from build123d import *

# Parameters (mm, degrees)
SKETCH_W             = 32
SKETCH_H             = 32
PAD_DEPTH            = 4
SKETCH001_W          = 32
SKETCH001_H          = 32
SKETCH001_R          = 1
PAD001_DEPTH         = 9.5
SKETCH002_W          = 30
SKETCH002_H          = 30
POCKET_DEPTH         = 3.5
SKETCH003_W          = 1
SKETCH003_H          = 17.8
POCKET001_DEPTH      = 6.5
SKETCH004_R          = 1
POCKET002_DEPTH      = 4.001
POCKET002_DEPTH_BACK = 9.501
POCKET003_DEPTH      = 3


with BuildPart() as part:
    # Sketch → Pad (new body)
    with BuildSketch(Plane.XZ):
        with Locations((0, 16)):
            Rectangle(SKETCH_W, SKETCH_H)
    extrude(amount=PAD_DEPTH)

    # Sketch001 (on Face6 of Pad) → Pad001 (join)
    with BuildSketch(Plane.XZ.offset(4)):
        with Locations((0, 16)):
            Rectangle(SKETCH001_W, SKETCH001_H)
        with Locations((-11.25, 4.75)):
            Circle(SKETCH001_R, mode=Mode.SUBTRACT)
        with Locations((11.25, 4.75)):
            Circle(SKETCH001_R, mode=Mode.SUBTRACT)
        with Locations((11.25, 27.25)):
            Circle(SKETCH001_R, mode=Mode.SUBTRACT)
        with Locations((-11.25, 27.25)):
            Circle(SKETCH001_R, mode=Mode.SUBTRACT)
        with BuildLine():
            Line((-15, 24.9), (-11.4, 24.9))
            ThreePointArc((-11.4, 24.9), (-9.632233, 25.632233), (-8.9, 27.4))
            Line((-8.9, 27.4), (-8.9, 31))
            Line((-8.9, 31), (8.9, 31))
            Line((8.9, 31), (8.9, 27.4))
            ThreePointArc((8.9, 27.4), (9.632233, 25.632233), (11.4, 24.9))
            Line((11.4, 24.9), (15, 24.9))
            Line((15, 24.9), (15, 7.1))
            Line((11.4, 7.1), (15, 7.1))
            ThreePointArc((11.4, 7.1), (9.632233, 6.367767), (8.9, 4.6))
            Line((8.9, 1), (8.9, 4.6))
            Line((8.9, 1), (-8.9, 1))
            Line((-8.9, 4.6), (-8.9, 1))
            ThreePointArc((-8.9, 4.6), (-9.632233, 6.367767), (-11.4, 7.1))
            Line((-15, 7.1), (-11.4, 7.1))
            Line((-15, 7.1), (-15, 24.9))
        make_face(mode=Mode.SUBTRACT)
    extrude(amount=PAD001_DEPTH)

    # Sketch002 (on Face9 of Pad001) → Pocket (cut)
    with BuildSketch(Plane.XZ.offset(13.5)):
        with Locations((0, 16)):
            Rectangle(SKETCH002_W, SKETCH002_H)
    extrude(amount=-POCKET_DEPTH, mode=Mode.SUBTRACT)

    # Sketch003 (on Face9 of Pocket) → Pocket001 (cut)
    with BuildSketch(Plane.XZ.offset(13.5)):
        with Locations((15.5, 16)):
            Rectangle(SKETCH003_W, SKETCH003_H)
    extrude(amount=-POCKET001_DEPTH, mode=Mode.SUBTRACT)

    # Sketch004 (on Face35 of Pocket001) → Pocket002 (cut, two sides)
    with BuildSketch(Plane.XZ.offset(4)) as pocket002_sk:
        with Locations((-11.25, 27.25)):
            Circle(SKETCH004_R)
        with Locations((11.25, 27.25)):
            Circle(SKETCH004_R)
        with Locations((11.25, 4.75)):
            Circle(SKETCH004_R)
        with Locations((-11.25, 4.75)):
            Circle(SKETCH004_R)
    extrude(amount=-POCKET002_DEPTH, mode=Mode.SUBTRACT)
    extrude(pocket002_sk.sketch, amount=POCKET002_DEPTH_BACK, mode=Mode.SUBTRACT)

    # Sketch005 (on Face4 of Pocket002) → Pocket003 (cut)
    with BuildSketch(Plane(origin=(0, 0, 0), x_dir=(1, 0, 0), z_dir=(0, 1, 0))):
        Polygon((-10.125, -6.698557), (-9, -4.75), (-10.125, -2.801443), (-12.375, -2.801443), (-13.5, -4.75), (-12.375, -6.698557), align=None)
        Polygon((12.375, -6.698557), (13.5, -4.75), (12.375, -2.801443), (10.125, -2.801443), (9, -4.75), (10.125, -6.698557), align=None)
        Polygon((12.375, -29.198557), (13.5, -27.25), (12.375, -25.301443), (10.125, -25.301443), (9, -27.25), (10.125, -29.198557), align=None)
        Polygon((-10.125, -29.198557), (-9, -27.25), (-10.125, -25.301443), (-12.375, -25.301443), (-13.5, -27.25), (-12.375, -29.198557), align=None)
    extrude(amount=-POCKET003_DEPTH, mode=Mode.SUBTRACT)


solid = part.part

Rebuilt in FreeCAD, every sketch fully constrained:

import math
import FreeCAD as App
import Part
import Sketcher
from FreeCAD import Vector
Q = App.Units.Quantity

doc = App.newDocument("Part")
params = doc.addObject("Spreadsheet::Sheet", "Params")
for row, (alias, value) in enumerate([
    ("sketch1_width", "32 mm"),
    ("pad1_length", "4 mm"),
    ("sketch2_diameter", "2 mm"),
    ("sketch2_radius", "2.5 mm"),
    ("sketch2_width", "32 mm"),
    ("sketch2_width2", "3.6 mm"),
    ("sketch2_width3", "17.8 mm"),
    ("pad2_length", "9.5 mm"),
    ("sketch3_width", "30 mm"),
    ("pocket1_length", "3.5 mm"),
    ("sketch4_width", "1 mm"),
    ("sketch4_height", "17.8 mm"),
    ("pocket2_length", "6.5 mm"),
    ("sketch5_diameter", "2 mm"),
    ("sketch6_width", "2.25 mm"),
    ("pocket4_length", "3 mm"),
], start=1):
    params.set(f"A{row}", alias)
    params.set(f"B{row}", "=" + value)
    params.setAlias(f"B{row}", alias)

body = doc.addObject("PartDesign::Body", "Body")

# Sketch on XZ plane
sketch1 = body.newObject("Sketcher::SketchObject", "Sketch")
sketch1.AttachmentSupport = (doc.getObject("XZ_Plane"), [""])
sketch1.MapMode = "FlatFace"
sketch1.addGeometry([
    Part.LineSegment(Vector(-16, 32, 0), Vector(-16, 0, 0)),
    Part.LineSegment(Vector(-16, 0, 0), Vector(16, 0, 0)),
    Part.LineSegment(Vector(16, 0, 0), Vector(16, 32, 0)),
    Part.LineSegment(Vector(16, 32, 0), Vector(-16, 32, 0)),
], False)
sketch1.addConstraint([
    Sketcher.Constraint("Coincident", 0, 2, 1, 1),
    Sketcher.Constraint("Coincident", 1, 2, 2, 1),
    Sketcher.Constraint("Coincident", 2, 2, 3, 1),
    Sketcher.Constraint("Coincident", 3, 2, 0, 1),
    Sketcher.Constraint("Vertical", 0),
    Sketcher.Constraint("Horizontal", 1),
    Sketcher.Constraint("Vertical", 2),
    Sketcher.Constraint("Horizontal", 3),
    Sketcher.Constraint("Symmetric", 0, 2, 1, 2, -1, 1),
    Sketcher.Constraint("Equal", 3, 0),
    Sketcher.Constraint("DistanceX", 1, 1, 1, 2, Q("32 mm")),
])
sketch1.setExpression("Constraints[10]", "Params.sketch1_width")
pad1 = body.newObject("PartDesign::Pad", "Pad")
pad1.Profile = sketch1
pad1.setExpression("Length", "Params.pad1_length")

# Sketch on XZ plane
sketch2 = body.newObject("Sketcher::SketchObject", "Sketch001")
sketch2.AttachmentSupport = (doc.getObject("XZ_Plane"), [""])
sketch2.MapMode = "FlatFace"
sketch2.AttachmentOffset = App.Placement(Vector(0, 0, 4), App.Rotation())
sketch2.addGeometry([
    Part.LineSegment(Vector(-16, 32, 0), Vector(-16, 0, 0)),  # 0
    Part.LineSegment(Vector(-16, 0, 0), Vector(16, 0, 0)),  # 1
    Part.LineSegment(Vector(16, 0, 0), Vector(16, 32, 0)),  # 2
    Part.LineSegment(Vector(16, 32, 0), Vector(-16, 32, 0)),  # 3
    Part.Circle(Vector(-11.25, 4.75, 0), Vector(0, 0, 1), 1),  # 4
    Part.Circle(Vector(11.25, 4.75, 0), Vector(0, 0, 1), 1),  # 5
    Part.Circle(Vector(-11.25, 27.25, 0), Vector(0, 0, 1), 1),  # 6
    Part.LineSegment(Vector(-15, 7.1, 0), Vector(-15, 24.9, 0)),  # 7
    Part.LineSegment(Vector(-15, 24.9, 0), Vector(-11.4, 24.9, 0)),  # 8
    Part.ArcOfCircle(Part.Circle(Vector(-11.4, 27.4, 0), Vector(0, 0, 1), 2.5), math.radians(-90.000004), math.radians(0.000004)),  # 9
    Part.LineSegment(Vector(-8.9, 27.4, 0), Vector(-8.9, 31, 0)),  # 10
    Part.LineSegment(Vector(-8.9, 31, 0), Vector(8.9, 31, 0)),  # 11
    Part.LineSegment(Vector(8.9, 31, 0), Vector(8.9, 27.4, 0)),  # 12
    Part.ArcOfCircle(Part.Circle(Vector(11.4, 27.4, 0), Vector(0, 0, 1), 2.5), math.radians(179.999996), math.radians(270.000004)),  # 13
    Part.LineSegment(Vector(11.4, 24.9, 0), Vector(15, 24.9, 0)),  # 14
    Part.LineSegment(Vector(15, 24.9, 0), Vector(15, 7.1, 0)),  # 15
    Part.LineSegment(Vector(15, 7.1, 0), Vector(11.4, 7.1, 0)),  # 16
    Part.ArcOfCircle(Part.Circle(Vector(11.4, 4.6, 0), Vector(0, 0, 1), 2.5), math.radians(89.999996), math.radians(180.000004)),  # 17
    Part.LineSegment(Vector(8.9, 4.6, 0), Vector(8.9, 1, 0)),  # 18
    Part.LineSegment(Vector(8.9, 1, 0), Vector(-8.9, 1, 0)),  # 19
    Part.LineSegment(Vector(-8.9, 1, 0), Vector(-8.9, 4.6, 0)),  # 20
    Part.ArcOfCircle(Part.Circle(Vector(-11.4, 4.6, 0), Vector(0, 0, 1), 2.5), math.radians(-0.000004), math.radians(90.000004)),  # 21
    Part.LineSegment(Vector(-11.4, 7.1, 0), Vector(-15, 7.1, 0)),  # 22
    Part.Circle(Vector(11.25, 27.25, 0), Vector(0, 0, 1), 1),  # 23
], False)
sketch2.addConstraint([
    Sketcher.Constraint("Coincident", 0, 2, 1, 1),
    Sketcher.Constraint("Coincident", 1, 2, 2, 1),
    Sketcher.Constraint("Coincident", 2, 2, 3, 1),
    Sketcher.Constraint("Coincident", 3, 2, 0, 1),
    Sketcher.Constraint("Coincident", 7, 2, 8, 1),
    Sketcher.Constraint("Tangent", 8, 2, 9, 1),
    Sketcher.Constraint("Tangent", 9, 2, 10, 1),
    Sketcher.Constraint("Coincident", 10, 2, 11, 1),
    Sketcher.Constraint("Coincident", 11, 2, 12, 1),
    Sketcher.Constraint("Tangent", 12, 2, 13, 1),
    Sketcher.Constraint("Tangent", 13, 2, 14, 1),
    Sketcher.Constraint("Coincident", 14, 2, 15, 1),
    Sketcher.Constraint("Coincident", 15, 2, 16, 1),
    Sketcher.Constraint("Tangent", 16, 2, 17, 1),
    Sketcher.Constraint("Tangent", 17, 2, 18, 1),
    Sketcher.Constraint("Coincident", 18, 2, 19, 1),
    Sketcher.Constraint("Coincident", 19, 2, 20, 1),
    Sketcher.Constraint("Tangent", 20, 2, 21, 1),
    Sketcher.Constraint("Tangent", 21, 2, 22, 1),
    Sketcher.Constraint("Coincident", 22, 2, 7, 1),
    Sketcher.Constraint("Vertical", 0),
    Sketcher.Constraint("Horizontal", 1),
    Sketcher.Constraint("Vertical", 2),
    Sketcher.Constraint("Horizontal", 3),
    Sketcher.Constraint("Vertical", 7),
    Sketcher.Constraint("Horizontal", 8),
    Sketcher.Constraint("Vertical", 10),
    Sketcher.Constraint("Horizontal", 11),
    Sketcher.Constraint("Vertical", 12),
    Sketcher.Constraint("Horizontal", 14),
    Sketcher.Constraint("Vertical", 15),
    Sketcher.Constraint("Horizontal", 16),
    Sketcher.Constraint("Vertical", 18),
    Sketcher.Constraint("Horizontal", 19),
    Sketcher.Constraint("Vertical", 20),
    Sketcher.Constraint("Horizontal", 22),
    Sketcher.Constraint("Equal", 4, 5),
    Sketcher.Constraint("Equal", 5, 6),
    Sketcher.Constraint("Equal", 9, 13),
    Sketcher.Constraint("Equal", 13, 17),
    Sketcher.Constraint("Equal", 17, 21),
    Sketcher.Constraint("Equal", 6, 23),
    Sketcher.Constraint("Symmetric", 0, 2, 1, 2, -1, 1),
    Sketcher.Constraint("Symmetric", 4, 3, 5, 3, -2),
    Sketcher.Constraint("Symmetric", 9, 3, 13, 3, -2),
    Sketcher.Constraint("Symmetric", 17, 3, 21, 3, -2),
    Sketcher.Constraint("Symmetric", 6, 3, 23, 3, -2),
    Sketcher.Constraint("Vertical", 4, 3, 6, 3),
    Sketcher.Constraint("Vertical", 13, 3, 17, 3),
    Sketcher.Constraint("Equal", 8, 14),
    Sketcher.Constraint("Equal", 3, 0),
    Sketcher.Constraint("Equal", 19, 7),
    Sketcher.Constraint("Equal", 22, 10),
    Sketcher.Constraint("Equal", 12, 18),
    Sketcher.Constraint("Diameter", 4, Q("2 mm")),
    Sketcher.Constraint("Radius", 9, Q("2.5 mm")),
    Sketcher.Constraint("DistanceX", 1, 1, 1, 2, Q("32 mm")),
    Sketcher.Constraint("DistanceX", 8, 1, 8, 2, Q("3.6 mm")),
    Sketcher.Constraint("DistanceX", 11, 1, 11, 2, Q("17.8 mm")),
    Sketcher.Constraint("DistanceY", -1, 1, 10, 2, Q("31 mm")),
    Sketcher.Constraint("DistanceX", 4, 3, 5, 3, Q("22.5 mm")),
    Sketcher.Constraint("DistanceY", 4, 3, 6, 3, Q("22.5 mm")),
    Sketcher.Constraint("DistanceY", -1, 1, 4, 3, Q("4.75 mm")),
])
sketch2.setExpression("Constraints[54]", "Params.sketch2_diameter")
sketch2.setExpression("Constraints[55]", "Params.sketch2_radius")
sketch2.setExpression("Constraints[56]", "Params.sketch2_width")
sketch2.setExpression("Constraints[57]", "Params.sketch2_width2")
sketch2.setExpression("Constraints[58]", "Params.sketch2_width3")
pad2 = body.newObject("PartDesign::Pad", "Pad001")
pad2.Profile = sketch2
pad2.setExpression("Length", "Params.pad2_length")

# Sketch on XZ plane
sketch3 = body.newObject("Sketcher::SketchObject", "Sketch002")
sketch3.AttachmentSupport = (doc.getObject("XZ_Plane"), [""])
sketch3.MapMode = "FlatFace"
sketch3.AttachmentOffset = App.Placement(Vector(0, 0, 13.5), App.Rotation())
sketch3.addGeometry([
    Part.LineSegment(Vector(-15, 31, 0), Vector(-15, 1, 0)),
    Part.LineSegment(Vector(-15, 1, 0), Vector(15, 1, 0)),
    Part.LineSegment(Vector(15, 1, 0), Vector(15, 31, 0)),
    Part.LineSegment(Vector(15, 31, 0), Vector(-15, 31, 0)),
], False)
sketch3.addConstraint([
    Sketcher.Constraint("Coincident", 0, 2, 1, 1),
    Sketcher.Constraint("Coincident", 1, 2, 2, 1),
    Sketcher.Constraint("Coincident", 2, 2, 3, 1),
    Sketcher.Constraint("Coincident", 3, 2, 0, 1),
    Sketcher.Constraint("Vertical", 0),
    Sketcher.Constraint("Horizontal", 1),
    Sketcher.Constraint("Vertical", 2),
    Sketcher.Constraint("Horizontal", 3),
    Sketcher.Constraint("Equal", 3, 0),
    Sketcher.Constraint("DistanceX", 1, 1, 1, 2, Q("30 mm")),
    Sketcher.Constraint("DistanceX", 0, 2, -1, 1, Q("15 mm")),
    Sketcher.Constraint("DistanceY", -1, 1, 0, 2, Q("1 mm")),
])
sketch3.setExpression("Constraints[9]", "Params.sketch3_width")
pocket1 = body.newObject("PartDesign::Pocket", "Pocket")
pocket1.Profile = sketch3
pocket1.setExpression("Length", "Params.pocket1_length")

# Sketch on XZ plane
sketch4 = body.newObject("Sketcher::SketchObject", "Sketch003")
sketch4.AttachmentSupport = (doc.getObject("XZ_Plane"), [""])
sketch4.MapMode = "FlatFace"
sketch4.AttachmentOffset = App.Placement(Vector(0, 0, 13.5), App.Rotation())
sketch4.addGeometry([
    Part.LineSegment(Vector(15, 24.9, 0), Vector(15, 7.1, 0)),
    Part.LineSegment(Vector(15, 7.1, 0), Vector(16, 7.1, 0)),
    Part.LineSegment(Vector(16, 7.1, 0), Vector(16, 24.9, 0)),
    Part.LineSegment(Vector(16, 24.9, 0), Vector(15, 24.9, 0)),
], False)
sketch4.addConstraint([
    Sketcher.Constraint("Coincident", 0, 2, 1, 1),
    Sketcher.Constraint("Coincident", 1, 2, 2, 1),
    Sketcher.Constraint("Coincident", 2, 2, 3, 1),
    Sketcher.Constraint("Coincident", 3, 2, 0, 1),
    Sketcher.Constraint("Vertical", 0),
    Sketcher.Constraint("Horizontal", 1),
    Sketcher.Constraint("Vertical", 2),
    Sketcher.Constraint("Horizontal", 3),
    Sketcher.Constraint("DistanceX", 1, 1, 1, 2, Q("1 mm")),
    Sketcher.Constraint("DistanceY", 0, 2, 0, 1, Q("17.8 mm")),
    Sketcher.Constraint("DistanceX", -1, 1, 0, 2, Q("15 mm")),
    Sketcher.Constraint("DistanceY", -1, 1, 0, 2, Q("7.1 mm")),
])
sketch4.setExpression("Constraints[8]", "Params.sketch4_width")
sketch4.setExpression("Constraints[9]", "Params.sketch4_height")
pocket2 = body.newObject("PartDesign::Pocket", "Pocket001")
pocket2.Profile = sketch4
pocket2.setExpression("Length", "Params.pocket2_length")

# Sketch on XZ plane
sketch5 = body.newObject("Sketcher::SketchObject", "Sketch004")
sketch5.AttachmentSupport = (doc.getObject("XZ_Plane"), [""])
sketch5.MapMode = "FlatFace"
sketch5.AttachmentOffset = App.Placement(Vector(0, 0, 4), App.Rotation())
sketch5.addGeometry([
    Part.Circle(Vector(-11.25, 27.25, 0), Vector(0, 0, 1), 1),
    Part.Circle(Vector(11.25, 27.25, 0), Vector(0, 0, 1), 1),
    Part.Circle(Vector(11.25, 4.75, 0), Vector(0, 0, 1), 1),
    Part.Circle(Vector(-11.25, 4.75, 0), Vector(0, 0, 1), 1),
], False)
sketch5.addConstraint([
    Sketcher.Constraint("Equal", 0, 1),
    Sketcher.Constraint("Equal", 1, 2),
    Sketcher.Constraint("Equal", 2, 3),
    Sketcher.Constraint("Symmetric", 0, 3, 1, 3, -2),
    Sketcher.Constraint("Symmetric", 2, 3, 3, 3, -2),
    Sketcher.Constraint("Vertical", 1, 3, 2, 3),
    Sketcher.Constraint("Diameter", 0, Q("2 mm")),
    Sketcher.Constraint("DistanceX", 0, 3, 1, 3, Q("22.5 mm")),
    Sketcher.Constraint("DistanceY", 2, 3, 1, 3, Q("22.5 mm")),
    Sketcher.Constraint("DistanceY", -1, 1, 0, 3, Q("27.25 mm")),
])
sketch5.setExpression("Constraints[6]", "Params.sketch5_diameter")
pocket3 = body.newObject("PartDesign::Pocket", "Pocket002")
pocket3.Profile = sketch5
pocket3.Type = "ThroughAll"
pocket3.Midplane = True

# Sketch on XZ plane
sketch6 = body.newObject("Sketcher::SketchObject", "Sketch005")
sketch6.AttachmentSupport = (doc.getObject("XZ_Plane"), [""])
sketch6.MapMode = "FlatFace"
sketch6.addGeometry([
    Part.LineSegment(Vector(-10.125, 6.698557, 0), Vector(-9, 4.75, 0)),  # 0
    Part.LineSegment(Vector(-9, 4.75, 0), Vector(-10.125, 2.801443, 0)),  # 1
    Part.LineSegment(Vector(-10.125, 2.801443, 0), Vector(-12.375, 2.801443, 0)),  # 2
    Part.LineSegment(Vector(-12.375, 2.801443, 0), Vector(-13.5, 4.75, 0)),  # 3
    Part.LineSegment(Vector(-13.5, 4.75, 0), Vector(-12.375, 6.698557, 0)),  # 4
    Part.LineSegment(Vector(-12.375, 6.698557, 0), Vector(-10.125, 6.698557, 0)),  # 5
    Part.LineSegment(Vector(12.375, 6.698557, 0), Vector(13.5, 4.75, 0)),  # 6
    Part.LineSegment(Vector(13.5, 4.75, 0), Vector(12.375, 2.801443, 0)),  # 7
    Part.LineSegment(Vector(12.375, 2.801443, 0), Vector(10.125, 2.801443, 0)),  # 8
    Part.LineSegment(Vector(10.125, 2.801443, 0), Vector(9, 4.75, 0)),  # 9
    Part.LineSegment(Vector(9, 4.75, 0), Vector(10.125, 6.698557, 0)),  # 10
    Part.LineSegment(Vector(10.125, 6.698557, 0), Vector(12.375, 6.698557, 0)),  # 11
    Part.LineSegment(Vector(12.375, 29.198557, 0), Vector(13.5, 27.25, 0)),  # 12
    Part.LineSegment(Vector(13.5, 27.25, 0), Vector(12.375, 25.301443, 0)),  # 13
    Part.LineSegment(Vector(12.375, 25.301443, 0), Vector(10.125, 25.301443, 0)),  # 14
    Part.LineSegment(Vector(10.125, 25.301443, 0), Vector(9, 27.25, 0)),  # 15
    Part.LineSegment(Vector(9, 27.25, 0), Vector(10.125, 29.198557, 0)),  # 16
    Part.LineSegment(Vector(10.125, 29.198557, 0), Vector(12.375, 29.198557, 0)),  # 17
    Part.LineSegment(Vector(-10.125, 29.198557, 0), Vector(-9, 27.25, 0)),  # 18
    Part.LineSegment(Vector(-9, 27.25, 0), Vector(-10.125, 25.301443, 0)),  # 19
    Part.LineSegment(Vector(-10.125, 25.301443, 0), Vector(-12.375, 25.301443, 0)),  # 20
    Part.LineSegment(Vector(-12.375, 25.301443, 0), Vector(-13.5, 27.25, 0)),  # 21
    Part.LineSegment(Vector(-13.5, 27.25, 0), Vector(-12.375, 29.198557, 0)),  # 22
    Part.LineSegment(Vector(-12.375, 29.198557, 0), Vector(-10.125, 29.198557, 0)),  # 23
], False)
sketch6.addConstraint([
    Sketcher.Constraint("Coincident", 0, 2, 1, 1),
    Sketcher.Constraint("Coincident", 1, 2, 2, 1),
    Sketcher.Constraint("Coincident", 2, 2, 3, 1),
    Sketcher.Constraint("Coincident", 3, 2, 4, 1),
    Sketcher.Constraint("Coincident", 4, 2, 5, 1),
    Sketcher.Constraint("Coincident", 5, 2, 0, 1),
    Sketcher.Constraint("Coincident", 6, 2, 7, 1),
    Sketcher.Constraint("Coincident", 7, 2, 8, 1),
    Sketcher.Constraint("Coincident", 8, 2, 9, 1),
    Sketcher.Constraint("Coincident", 9, 2, 10, 1),
    Sketcher.Constraint("Coincident", 10, 2, 11, 1),
    Sketcher.Constraint("Coincident", 11, 2, 6, 1),
    Sketcher.Constraint("Coincident", 12, 2, 13, 1),
    Sketcher.Constraint("Coincident", 13, 2, 14, 1),
    Sketcher.Constraint("Coincident", 14, 2, 15, 1),
    Sketcher.Constraint("Coincident", 15, 2, 16, 1),
    Sketcher.Constraint("Coincident", 16, 2, 17, 1),
    Sketcher.Constraint("Coincident", 17, 2, 12, 1),
    Sketcher.Constraint("Coincident", 18, 2, 19, 1),
    Sketcher.Constraint("Coincident", 19, 2, 20, 1),
    Sketcher.Constraint("Coincident", 20, 2, 21, 1),
    Sketcher.Constraint("Coincident", 21, 2, 22, 1),
    Sketcher.Constraint("Coincident", 22, 2, 23, 1),
    Sketcher.Constraint("Coincident", 23, 2, 18, 1),
    Sketcher.Constraint("Horizontal", 2),
    Sketcher.Constraint("Horizontal", 5),
    Sketcher.Constraint("Horizontal", 8),
    Sketcher.Constraint("Horizontal", 11),
    Sketcher.Constraint("Horizontal", 14),
    Sketcher.Constraint("Horizontal", 17),
    Sketcher.Constraint("Horizontal", 20),
    Sketcher.Constraint("Horizontal", 23),
    Sketcher.Constraint("Symmetric", 3, 2, 6, 2, -2),
    Sketcher.Constraint("Symmetric", 2, 2, 7, 2, -2),
    Sketcher.Constraint("Symmetric", 0, 2, 9, 2, -2),
    Sketcher.Constraint("Symmetric", 5, 2, 10, 2, -2),
    Sketcher.Constraint("Symmetric", 15, 2, 18, 2, -2),
    Sketcher.Constraint("Symmetric", 14, 2, 19, 2, -2),
    Sketcher.Constraint("Symmetric", 12, 2, 21, 2, -2),
    Sketcher.Constraint("Symmetric", 17, 2, 22, 2, -2),
    Sketcher.Constraint("Parallel", 0, 3),
    Sketcher.Constraint("Parallel", 1, 4),
    Sketcher.Constraint("Parallel", 3, 6),
    Sketcher.Constraint("Parallel", 4, 7),
    Sketcher.Constraint("Parallel", 6, 9),
    Sketcher.Constraint("Parallel", 9, 12),
    Sketcher.Constraint("Parallel", 10, 13),
    Sketcher.Constraint("Parallel", 12, 15),
    Sketcher.Constraint("Parallel", 13, 16),
    Sketcher.Constraint("Parallel", 15, 18),
    Sketcher.Constraint("Parallel", 18, 21),
    Sketcher.Constraint("Horizontal", 0, 2, 3, 2),
    Sketcher.Constraint("Horizontal", 12, 2, 15, 2),
    Sketcher.Constraint("Vertical", 2, 2, 4, 2),
    Sketcher.Constraint("Vertical", 6, 2, 12, 2),
    Sketcher.Constraint("Vertical", 11, 2, 13, 2),
    Sketcher.Constraint("Vertical", 10, 2, 14, 2),
    Sketcher.Constraint("Vertical", 14, 2, 16, 2),
    Sketcher.Constraint("Angle", 0, Q("-59.999998 deg")),
    Sketcher.Constraint("DistanceX", 0, 2, -1, 1, Q("9 mm")),
    Sketcher.Constraint("DistanceX", 2, 2, 2, 1, Q("2.25 mm")),
    Sketcher.Constraint("DistanceX", 3, 2, -1, 1, Q("13.5 mm")),
    Sketcher.Constraint("DistanceY", 6, 2, 12, 2, Q("22.5 mm")),
    Sketcher.Constraint("DistanceY", -1, 1, 0, 2, Q("4.75 mm")),
])
sketch6.setExpression("Constraints[60]", "Params.sketch6_width")
pocket4 = body.newObject("PartDesign::Pocket", "Pocket003")
pocket4.Profile = sketch6
pocket4.setExpression("Length", "Params.pocket4_length")
pocket4.Reversed = True

doc.recompute()
